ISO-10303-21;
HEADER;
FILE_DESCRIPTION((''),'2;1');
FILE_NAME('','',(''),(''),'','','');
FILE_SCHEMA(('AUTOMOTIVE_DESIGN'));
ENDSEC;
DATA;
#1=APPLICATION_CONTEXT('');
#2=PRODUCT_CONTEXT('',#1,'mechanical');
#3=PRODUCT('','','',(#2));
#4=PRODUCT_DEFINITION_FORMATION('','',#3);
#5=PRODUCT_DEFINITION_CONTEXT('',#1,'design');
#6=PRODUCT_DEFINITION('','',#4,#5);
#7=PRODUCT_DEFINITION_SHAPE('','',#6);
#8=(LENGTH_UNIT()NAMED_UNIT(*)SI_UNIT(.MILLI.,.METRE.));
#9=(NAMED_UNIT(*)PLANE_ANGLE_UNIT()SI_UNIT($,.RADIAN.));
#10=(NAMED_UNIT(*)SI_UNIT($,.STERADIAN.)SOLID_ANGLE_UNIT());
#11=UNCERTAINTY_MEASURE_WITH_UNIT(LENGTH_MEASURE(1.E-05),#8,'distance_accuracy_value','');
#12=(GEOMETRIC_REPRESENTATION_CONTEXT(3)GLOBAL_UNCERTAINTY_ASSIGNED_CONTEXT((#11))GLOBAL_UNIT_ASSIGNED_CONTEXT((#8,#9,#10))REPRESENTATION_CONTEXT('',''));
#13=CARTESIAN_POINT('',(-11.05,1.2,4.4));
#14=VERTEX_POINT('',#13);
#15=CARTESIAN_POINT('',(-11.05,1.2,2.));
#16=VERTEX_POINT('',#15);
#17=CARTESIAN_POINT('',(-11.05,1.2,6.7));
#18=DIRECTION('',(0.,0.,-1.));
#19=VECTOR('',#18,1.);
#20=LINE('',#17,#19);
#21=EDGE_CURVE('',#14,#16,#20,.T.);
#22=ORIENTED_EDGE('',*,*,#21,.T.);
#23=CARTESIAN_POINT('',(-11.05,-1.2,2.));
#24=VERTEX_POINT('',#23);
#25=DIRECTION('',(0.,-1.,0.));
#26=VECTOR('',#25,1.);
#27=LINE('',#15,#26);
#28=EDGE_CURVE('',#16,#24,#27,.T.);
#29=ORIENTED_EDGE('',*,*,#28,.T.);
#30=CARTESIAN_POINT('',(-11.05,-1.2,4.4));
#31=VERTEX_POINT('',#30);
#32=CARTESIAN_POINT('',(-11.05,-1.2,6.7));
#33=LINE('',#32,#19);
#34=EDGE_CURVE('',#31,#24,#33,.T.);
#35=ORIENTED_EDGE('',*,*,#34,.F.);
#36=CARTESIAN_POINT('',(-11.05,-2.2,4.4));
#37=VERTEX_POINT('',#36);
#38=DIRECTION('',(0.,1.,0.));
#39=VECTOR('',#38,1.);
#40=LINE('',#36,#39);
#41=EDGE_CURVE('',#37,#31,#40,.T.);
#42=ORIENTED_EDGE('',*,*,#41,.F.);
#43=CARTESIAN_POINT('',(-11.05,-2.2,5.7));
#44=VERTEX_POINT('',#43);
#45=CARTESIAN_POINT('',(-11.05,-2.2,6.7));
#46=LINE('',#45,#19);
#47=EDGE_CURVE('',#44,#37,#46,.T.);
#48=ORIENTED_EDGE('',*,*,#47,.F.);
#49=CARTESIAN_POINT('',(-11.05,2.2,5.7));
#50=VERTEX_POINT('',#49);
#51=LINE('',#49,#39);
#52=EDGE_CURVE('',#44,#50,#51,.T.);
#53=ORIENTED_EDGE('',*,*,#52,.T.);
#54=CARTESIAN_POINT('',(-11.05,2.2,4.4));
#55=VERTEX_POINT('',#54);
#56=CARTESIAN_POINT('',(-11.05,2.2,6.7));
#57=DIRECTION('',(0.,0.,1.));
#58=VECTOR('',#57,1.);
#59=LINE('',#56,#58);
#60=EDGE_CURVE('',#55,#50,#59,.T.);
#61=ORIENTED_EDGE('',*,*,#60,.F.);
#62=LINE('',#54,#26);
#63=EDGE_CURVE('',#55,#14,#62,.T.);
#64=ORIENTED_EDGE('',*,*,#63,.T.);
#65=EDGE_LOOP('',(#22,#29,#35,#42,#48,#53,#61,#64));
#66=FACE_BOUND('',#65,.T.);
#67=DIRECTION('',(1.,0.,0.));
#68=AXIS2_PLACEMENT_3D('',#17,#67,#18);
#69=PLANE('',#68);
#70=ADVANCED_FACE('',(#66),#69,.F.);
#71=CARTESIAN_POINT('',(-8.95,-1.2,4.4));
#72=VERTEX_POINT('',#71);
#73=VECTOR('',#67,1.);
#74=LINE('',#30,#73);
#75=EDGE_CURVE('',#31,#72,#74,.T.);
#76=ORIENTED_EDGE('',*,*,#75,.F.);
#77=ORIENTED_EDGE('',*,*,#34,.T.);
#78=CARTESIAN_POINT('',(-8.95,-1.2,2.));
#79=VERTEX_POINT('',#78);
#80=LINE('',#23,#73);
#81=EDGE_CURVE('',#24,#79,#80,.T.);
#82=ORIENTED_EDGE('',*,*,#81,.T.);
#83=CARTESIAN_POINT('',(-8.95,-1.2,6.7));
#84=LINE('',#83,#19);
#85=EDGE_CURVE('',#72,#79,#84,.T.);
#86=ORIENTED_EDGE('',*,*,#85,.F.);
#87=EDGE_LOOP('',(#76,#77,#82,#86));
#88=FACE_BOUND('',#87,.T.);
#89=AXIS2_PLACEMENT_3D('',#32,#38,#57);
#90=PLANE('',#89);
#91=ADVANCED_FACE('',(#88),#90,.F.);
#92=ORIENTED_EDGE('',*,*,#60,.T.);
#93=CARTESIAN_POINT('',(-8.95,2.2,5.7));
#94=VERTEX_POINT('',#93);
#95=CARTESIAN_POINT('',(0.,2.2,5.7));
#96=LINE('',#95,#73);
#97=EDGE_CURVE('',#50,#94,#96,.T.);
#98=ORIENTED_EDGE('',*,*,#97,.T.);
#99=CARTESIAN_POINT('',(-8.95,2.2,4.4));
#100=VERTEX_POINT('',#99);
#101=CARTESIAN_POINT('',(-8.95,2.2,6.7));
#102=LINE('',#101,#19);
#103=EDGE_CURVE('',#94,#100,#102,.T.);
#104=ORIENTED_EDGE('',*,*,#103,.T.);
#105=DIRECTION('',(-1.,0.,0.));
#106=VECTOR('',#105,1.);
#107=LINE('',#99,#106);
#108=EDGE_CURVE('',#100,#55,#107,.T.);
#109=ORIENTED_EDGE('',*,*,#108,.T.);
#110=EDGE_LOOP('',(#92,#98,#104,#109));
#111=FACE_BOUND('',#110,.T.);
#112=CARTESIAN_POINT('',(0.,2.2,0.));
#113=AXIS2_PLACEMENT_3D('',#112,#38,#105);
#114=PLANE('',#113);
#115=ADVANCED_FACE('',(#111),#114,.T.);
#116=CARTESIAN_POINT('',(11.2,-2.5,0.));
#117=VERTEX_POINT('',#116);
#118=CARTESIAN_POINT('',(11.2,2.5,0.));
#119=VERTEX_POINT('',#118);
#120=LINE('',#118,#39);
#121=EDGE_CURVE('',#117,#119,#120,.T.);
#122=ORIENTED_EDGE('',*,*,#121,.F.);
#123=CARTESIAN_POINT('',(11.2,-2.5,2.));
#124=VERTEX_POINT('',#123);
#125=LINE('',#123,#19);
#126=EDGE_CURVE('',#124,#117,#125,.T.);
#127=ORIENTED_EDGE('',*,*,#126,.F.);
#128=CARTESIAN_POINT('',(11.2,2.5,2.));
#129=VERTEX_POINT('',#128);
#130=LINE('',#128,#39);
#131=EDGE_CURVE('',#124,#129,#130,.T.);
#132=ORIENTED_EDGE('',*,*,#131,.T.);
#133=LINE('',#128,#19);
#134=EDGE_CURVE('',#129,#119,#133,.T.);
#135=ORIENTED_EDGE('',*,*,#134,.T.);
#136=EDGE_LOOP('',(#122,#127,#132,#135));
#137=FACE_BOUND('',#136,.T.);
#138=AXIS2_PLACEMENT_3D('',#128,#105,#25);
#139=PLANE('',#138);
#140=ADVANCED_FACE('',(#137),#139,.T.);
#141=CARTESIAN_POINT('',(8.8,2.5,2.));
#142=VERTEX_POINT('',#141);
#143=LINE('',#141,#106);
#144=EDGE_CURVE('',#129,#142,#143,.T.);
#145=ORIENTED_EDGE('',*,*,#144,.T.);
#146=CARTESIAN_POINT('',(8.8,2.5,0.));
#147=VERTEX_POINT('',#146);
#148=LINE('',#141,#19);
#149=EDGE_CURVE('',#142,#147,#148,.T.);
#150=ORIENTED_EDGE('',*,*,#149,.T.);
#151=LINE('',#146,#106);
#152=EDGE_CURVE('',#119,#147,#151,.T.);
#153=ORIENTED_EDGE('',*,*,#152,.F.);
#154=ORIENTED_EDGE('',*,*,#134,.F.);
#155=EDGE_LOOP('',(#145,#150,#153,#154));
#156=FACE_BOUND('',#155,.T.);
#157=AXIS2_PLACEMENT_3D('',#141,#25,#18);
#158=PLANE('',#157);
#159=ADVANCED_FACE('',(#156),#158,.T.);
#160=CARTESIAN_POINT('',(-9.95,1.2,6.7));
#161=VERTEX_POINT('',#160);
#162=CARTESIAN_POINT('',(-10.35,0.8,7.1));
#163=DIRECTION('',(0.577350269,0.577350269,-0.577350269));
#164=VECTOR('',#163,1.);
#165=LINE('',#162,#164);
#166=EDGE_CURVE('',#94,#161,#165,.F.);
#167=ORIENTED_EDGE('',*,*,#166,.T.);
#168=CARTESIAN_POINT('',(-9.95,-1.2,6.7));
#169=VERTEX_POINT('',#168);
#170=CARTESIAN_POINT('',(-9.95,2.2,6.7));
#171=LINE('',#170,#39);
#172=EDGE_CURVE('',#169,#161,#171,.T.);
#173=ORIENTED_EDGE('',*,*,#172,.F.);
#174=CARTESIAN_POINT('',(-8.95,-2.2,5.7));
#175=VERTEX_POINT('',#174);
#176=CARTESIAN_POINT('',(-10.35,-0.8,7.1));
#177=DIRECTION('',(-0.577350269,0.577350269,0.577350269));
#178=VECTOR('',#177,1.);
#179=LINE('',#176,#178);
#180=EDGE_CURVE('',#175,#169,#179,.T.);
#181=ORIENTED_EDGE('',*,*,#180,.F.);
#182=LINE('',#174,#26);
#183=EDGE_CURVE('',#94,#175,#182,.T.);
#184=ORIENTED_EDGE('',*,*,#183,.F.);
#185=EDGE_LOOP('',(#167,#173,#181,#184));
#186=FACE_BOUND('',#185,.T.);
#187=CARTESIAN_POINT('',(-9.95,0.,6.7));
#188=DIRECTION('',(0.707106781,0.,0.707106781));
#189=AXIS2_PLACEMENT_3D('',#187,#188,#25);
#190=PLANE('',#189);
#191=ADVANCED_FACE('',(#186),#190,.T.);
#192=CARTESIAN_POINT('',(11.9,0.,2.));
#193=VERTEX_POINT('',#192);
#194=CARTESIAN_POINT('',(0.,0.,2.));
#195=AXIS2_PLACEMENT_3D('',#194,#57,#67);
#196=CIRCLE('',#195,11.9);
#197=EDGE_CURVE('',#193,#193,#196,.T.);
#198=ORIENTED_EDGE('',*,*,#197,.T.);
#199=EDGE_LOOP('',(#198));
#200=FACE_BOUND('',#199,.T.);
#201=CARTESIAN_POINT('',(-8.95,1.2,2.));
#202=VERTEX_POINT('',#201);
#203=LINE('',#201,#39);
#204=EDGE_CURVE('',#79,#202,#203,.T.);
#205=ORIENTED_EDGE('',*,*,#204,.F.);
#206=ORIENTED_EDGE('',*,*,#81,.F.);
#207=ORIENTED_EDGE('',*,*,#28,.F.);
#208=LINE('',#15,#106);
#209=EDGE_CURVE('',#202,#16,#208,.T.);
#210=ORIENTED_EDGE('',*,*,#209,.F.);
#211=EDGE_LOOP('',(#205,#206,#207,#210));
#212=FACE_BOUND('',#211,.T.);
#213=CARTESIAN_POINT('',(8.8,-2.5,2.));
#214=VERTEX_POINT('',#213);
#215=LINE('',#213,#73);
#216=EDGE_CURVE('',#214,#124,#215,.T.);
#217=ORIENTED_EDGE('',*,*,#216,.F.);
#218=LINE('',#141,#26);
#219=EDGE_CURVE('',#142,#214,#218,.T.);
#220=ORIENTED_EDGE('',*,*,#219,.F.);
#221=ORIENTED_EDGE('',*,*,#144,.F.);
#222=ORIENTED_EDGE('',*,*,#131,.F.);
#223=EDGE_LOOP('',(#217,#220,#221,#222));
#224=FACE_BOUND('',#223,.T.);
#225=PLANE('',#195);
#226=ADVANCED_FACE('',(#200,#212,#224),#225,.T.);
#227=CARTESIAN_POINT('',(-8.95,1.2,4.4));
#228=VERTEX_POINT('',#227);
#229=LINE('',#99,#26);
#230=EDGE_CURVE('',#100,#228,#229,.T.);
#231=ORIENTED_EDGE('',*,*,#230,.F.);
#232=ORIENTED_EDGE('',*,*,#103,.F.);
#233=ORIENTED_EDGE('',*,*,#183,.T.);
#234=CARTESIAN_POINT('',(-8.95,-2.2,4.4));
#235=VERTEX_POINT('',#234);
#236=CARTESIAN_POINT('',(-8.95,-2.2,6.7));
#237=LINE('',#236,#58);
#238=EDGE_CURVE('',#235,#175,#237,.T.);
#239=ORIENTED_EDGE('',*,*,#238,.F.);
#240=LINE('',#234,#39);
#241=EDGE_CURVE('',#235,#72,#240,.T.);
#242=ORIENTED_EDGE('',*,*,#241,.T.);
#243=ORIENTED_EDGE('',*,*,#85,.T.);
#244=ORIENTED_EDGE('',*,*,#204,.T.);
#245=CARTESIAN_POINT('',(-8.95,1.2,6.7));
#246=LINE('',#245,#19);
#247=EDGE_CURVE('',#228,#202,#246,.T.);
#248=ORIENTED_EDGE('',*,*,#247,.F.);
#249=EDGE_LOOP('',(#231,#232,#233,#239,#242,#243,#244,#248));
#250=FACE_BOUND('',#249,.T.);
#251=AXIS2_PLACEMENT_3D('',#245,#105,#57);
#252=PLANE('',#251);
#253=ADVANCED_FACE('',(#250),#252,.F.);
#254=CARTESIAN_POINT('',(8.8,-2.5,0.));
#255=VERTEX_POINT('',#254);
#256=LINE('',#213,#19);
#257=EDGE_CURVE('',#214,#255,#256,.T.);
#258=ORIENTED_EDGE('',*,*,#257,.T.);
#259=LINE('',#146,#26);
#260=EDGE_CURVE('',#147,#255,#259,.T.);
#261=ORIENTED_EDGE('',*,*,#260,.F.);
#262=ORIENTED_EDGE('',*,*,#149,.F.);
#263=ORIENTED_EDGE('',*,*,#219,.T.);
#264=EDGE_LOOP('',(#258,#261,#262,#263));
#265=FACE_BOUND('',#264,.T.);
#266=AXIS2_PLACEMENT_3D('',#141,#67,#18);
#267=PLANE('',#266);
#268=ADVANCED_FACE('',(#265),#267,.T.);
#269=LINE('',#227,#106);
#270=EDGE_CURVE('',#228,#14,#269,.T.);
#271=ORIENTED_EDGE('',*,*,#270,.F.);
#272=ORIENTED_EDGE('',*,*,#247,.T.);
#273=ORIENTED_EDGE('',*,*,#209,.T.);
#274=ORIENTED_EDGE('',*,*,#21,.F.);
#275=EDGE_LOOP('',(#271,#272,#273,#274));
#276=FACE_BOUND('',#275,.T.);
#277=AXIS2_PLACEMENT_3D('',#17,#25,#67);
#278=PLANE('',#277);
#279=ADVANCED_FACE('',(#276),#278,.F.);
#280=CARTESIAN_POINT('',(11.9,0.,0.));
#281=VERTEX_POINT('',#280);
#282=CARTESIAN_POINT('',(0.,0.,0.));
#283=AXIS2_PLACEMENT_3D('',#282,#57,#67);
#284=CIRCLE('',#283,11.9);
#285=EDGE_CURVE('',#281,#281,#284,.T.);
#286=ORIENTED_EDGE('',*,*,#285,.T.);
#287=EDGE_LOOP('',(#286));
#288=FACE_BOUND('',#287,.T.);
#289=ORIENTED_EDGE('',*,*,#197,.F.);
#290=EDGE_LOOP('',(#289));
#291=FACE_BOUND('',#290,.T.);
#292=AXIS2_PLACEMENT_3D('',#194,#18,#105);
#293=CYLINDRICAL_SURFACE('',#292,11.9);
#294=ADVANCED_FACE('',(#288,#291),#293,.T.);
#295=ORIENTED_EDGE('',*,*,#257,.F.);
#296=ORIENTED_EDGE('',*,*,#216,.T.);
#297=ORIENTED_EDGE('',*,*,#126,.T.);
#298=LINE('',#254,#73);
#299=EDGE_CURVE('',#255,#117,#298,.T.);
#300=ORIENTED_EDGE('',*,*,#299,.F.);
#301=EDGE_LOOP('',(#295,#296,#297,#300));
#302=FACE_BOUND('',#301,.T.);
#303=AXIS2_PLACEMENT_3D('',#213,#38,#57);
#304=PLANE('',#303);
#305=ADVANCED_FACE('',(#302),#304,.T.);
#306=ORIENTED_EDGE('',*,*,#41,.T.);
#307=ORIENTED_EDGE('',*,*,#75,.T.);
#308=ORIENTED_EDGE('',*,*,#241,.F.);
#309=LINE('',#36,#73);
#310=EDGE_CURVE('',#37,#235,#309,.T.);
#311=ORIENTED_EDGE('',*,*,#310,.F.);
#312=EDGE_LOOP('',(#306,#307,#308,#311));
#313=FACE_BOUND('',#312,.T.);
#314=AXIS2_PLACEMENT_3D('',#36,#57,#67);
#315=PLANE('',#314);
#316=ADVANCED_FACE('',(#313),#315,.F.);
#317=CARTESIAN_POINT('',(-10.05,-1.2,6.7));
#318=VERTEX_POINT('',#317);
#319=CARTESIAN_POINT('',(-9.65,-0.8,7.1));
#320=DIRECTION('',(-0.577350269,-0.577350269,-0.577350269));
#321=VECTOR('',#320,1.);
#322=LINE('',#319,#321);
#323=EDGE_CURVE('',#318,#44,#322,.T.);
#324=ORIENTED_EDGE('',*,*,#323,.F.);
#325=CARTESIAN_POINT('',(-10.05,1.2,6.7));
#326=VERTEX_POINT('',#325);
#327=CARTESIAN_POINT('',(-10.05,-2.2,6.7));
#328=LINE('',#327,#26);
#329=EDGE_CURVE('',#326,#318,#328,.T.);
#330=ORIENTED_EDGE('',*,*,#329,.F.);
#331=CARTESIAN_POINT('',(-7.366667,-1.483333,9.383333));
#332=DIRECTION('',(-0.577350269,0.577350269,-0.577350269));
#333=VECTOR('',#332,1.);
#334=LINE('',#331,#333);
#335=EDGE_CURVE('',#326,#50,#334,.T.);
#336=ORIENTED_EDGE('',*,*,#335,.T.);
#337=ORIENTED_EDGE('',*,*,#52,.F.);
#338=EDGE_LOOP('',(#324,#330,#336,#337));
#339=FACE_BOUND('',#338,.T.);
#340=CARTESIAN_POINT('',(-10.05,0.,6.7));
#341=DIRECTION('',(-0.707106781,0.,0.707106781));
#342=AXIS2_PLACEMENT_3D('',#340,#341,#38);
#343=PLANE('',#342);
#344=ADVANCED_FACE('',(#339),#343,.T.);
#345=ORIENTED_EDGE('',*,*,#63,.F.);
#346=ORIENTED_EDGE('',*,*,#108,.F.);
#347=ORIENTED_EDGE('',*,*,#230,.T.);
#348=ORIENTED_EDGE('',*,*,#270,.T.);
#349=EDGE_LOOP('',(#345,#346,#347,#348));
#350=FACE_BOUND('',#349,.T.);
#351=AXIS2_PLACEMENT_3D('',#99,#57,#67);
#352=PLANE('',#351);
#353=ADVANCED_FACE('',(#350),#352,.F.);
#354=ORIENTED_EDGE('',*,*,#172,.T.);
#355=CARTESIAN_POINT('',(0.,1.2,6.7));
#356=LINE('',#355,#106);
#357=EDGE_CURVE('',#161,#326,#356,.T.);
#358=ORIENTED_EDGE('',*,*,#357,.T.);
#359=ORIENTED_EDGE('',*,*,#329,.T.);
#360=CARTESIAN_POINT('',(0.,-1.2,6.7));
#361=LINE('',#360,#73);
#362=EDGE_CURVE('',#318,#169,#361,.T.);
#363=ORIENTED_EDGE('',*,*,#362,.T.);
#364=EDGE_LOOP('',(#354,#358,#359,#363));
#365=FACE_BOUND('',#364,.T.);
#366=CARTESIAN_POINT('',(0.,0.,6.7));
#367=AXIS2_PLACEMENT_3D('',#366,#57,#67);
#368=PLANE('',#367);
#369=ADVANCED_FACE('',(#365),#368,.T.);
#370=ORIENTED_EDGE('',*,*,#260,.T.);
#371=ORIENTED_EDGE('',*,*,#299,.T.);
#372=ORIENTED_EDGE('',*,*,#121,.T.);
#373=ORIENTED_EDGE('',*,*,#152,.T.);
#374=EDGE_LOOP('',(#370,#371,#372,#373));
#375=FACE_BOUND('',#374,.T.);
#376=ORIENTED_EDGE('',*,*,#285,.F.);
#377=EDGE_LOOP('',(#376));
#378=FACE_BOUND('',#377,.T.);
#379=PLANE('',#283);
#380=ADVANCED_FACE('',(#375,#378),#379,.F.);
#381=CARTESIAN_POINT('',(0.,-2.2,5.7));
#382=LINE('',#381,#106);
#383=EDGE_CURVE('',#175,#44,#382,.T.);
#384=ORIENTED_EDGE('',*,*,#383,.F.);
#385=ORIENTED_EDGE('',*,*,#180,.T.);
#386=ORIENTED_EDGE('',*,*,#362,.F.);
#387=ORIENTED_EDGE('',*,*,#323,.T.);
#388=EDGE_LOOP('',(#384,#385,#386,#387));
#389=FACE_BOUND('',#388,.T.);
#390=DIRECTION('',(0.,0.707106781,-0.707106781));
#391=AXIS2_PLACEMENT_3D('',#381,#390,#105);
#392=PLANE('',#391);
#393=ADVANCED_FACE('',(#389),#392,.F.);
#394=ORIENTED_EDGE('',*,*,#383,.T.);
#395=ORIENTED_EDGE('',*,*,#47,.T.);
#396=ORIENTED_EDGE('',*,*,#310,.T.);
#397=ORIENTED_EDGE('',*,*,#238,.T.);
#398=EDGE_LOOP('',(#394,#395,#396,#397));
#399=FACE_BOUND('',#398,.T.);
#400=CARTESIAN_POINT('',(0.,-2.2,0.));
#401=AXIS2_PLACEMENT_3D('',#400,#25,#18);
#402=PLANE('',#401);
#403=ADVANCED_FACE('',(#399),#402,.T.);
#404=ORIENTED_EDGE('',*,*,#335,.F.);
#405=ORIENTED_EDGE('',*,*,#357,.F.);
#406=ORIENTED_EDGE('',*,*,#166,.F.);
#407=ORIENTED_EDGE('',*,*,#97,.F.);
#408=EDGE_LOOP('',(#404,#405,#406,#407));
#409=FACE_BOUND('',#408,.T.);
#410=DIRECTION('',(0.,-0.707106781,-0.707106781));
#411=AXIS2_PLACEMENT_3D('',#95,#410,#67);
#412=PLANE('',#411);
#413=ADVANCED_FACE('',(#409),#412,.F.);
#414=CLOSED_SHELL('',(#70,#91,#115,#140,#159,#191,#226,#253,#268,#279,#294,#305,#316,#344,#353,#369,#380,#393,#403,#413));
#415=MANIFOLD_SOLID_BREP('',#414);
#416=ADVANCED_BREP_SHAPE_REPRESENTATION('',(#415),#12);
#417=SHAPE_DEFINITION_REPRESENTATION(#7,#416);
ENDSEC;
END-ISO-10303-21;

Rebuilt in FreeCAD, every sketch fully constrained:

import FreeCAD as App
import Part
import Sketcher
Q = App.Units.Quantity


def edges_at(feature, points):
    """Names of the edges that pass closest to the given points."""
    edges = feature.Shape.Edges
    near = lambda p: min(range(len(edges)), key=lambda i: edges[i].distToShape(Part.Vertex(*p))[0])
    return sorted({f"Edge{near(p) + 1}" for p in points})

doc = App.newDocument("Part")
body = doc.addObject("PartDesign::Body", "Body")

# Sketch on XY plane
sketch1 = body.newObject("Sketcher::SketchObject", "Sketch")
sketch1.AttachmentSupport = (doc.getObject("XY_Plane"), [""])
sketch1.MapMode = "FlatFace"
sketch1.addGeometry(Part.Circle(App.Vector(0, 0, 0), App.Vector(0, 0, 1), 11.9), False)
sketch1.addGeometry(Part.LineSegment(App.Vector(11.2, -2.5, 0), App.Vector(8.8, -2.5, 0)), False)
sketch1.addGeometry(Part.LineSegment(App.Vector(8.8, -2.5, 0), App.Vector(8.8, 2.5, 0)), False)
sketch1.addGeometry(Part.LineSegment(App.Vector(8.8, 2.5, 0), App.Vector(11.2, 2.5, 0)), False)
sketch1.addGeometry(Part.LineSegment(App.Vector(11.2, 2.5, 0), App.Vector(11.2, -2.5, 0)), False)
sketch1.addConstraint(Sketcher.Constraint("Coincident", 1, 2, 2, 1))
sketch1.addConstraint(Sketcher.Constraint("Coincident", 2, 2, 3, 1))
sketch1.addConstraint(Sketcher.Constraint("Coincident", 3, 2, 4, 1))
sketch1.addConstraint(Sketcher.Constraint("Coincident", 4, 2, 1, 1))
sketch1.addConstraint(Sketcher.Constraint("Horizontal", 1))
sketch1.addConstraint(Sketcher.Constraint("Vertical", 2))
sketch1.addConstraint(Sketcher.Constraint("Horizontal", 3))
sketch1.addConstraint(Sketcher.Constraint("Vertical", 4))
sketch1.addConstraint(Sketcher.Constraint("Coincident", 0, 3, -1, 1))
sketch1.addConstraint(Sketcher.Constraint("Diameter", 0, Q("23.8 mm")))
sketch1.addConstraint(Sketcher.Constraint("DistanceY", 2, 1, 2, 2, Q("5 mm")))
sketch1.addConstraint(Sketcher.Constraint("DistanceX", 1, 2, 1, 1, Q("2.4 mm")))
sketch1.addConstraint(Sketcher.Constraint("DistanceX", -1, 1, 1, 2, Q("8.8 mm")))
sketch1.addConstraint(Sketcher.Constraint("DistanceY", 1, 2, -1, 1, Q("2.5 mm")))
pad1 = body.newObject("PartDesign::Pad", "Pad")
pad1.Profile = sketch1
pad1.Length = 2

# Sketch on XY plane
sketch2 = body.newObject("Sketcher::SketchObject", "Sketch001")
sketch2.AttachmentSupport = (doc.getObject("XY_Plane"), [""])
sketch2.MapMode = "FlatFace"
sketch2.AttachmentOffset = App.Placement(App.Vector(0, 0, 2), App.Rotation())
sketch2.addGeometry(Part.LineSegment(App.Vector(-11.05, 1.2, 0), App.Vector(-11.05, -1.2, 0)), False)
sketch2.addGeometry(Part.LineSegment(App.Vector(-11.05, -1.2, 0), App.Vector(-8.95, -1.2, 0)), False)
sketch2.addGeometry(Part.LineSegment(App.Vector(-8.95, -1.2, 0), App.Vector(-8.95, 1.2, 0)), False)
sketch2.addGeometry(Part.LineSegment(App.Vector(-8.95, 1.2, 0), App.Vector(-11.05, 1.2, 0)), False)
sketch2.addConstraint(Sketcher.Constraint("Coincident", 0, 2, 1, 1))
sketch2.addConstraint(Sketcher.Constraint("Coincident", 1, 2, 2, 1))
sketch2.addConstraint(Sketcher.Constraint("Coincident", 2, 2, 3, 1))
sketch2.addConstraint(Sketcher.Constraint("Coincident", 3, 2, 0, 1))
sketch2.addConstraint(Sketcher.Constraint("Vertical", 0))
sketch2.addConstraint(Sketcher.Constraint("Horizontal", 1))
sketch2.addConstraint(Sketcher.Constraint("Vertical", 2))
sketch2.addConstraint(Sketcher.Constraint("Horizontal", 3))
sketch2.addConstraint(Sketcher.Constraint("DistanceX", 1, 1, 1, 2, Q("2.1 mm")))
sketch2.addConstraint(Sketcher.Constraint("DistanceY", 0, 2, 0, 1, Q("2.4 mm")))
sketch2.addConstraint(Sketcher.Constraint("DistanceY", 0, 2, -1, 1, Q("1.2 mm")))
sketch2.addConstraint(Sketcher.Constraint("DistanceX", 0, 2, -1, 1, Q("11.05 mm")))
pad2 = body.newObject("PartDesign::Pad", "Pad001")
pad2.Profile = sketch2
pad2.Length = 4.7

# Sketch on XZ plane
sketch3 = body.newObject("Sketcher::SketchObject", "Sketch002")
sketch3.AttachmentSupport = (doc.getObject("XZ_Plane"), [""])
sketch3.MapMode = "FlatFace"
sketch3.AttachmentOffset = App.Placement(App.Vector(0, 0, -1.2), App.Rotation())
sketch3.addGeometry(Part.LineSegment(App.Vector(-11.05, 4.4, 0), App.Vector(-11.05, 6.7, 0)), False)
sketch3.addGeometry(Part.LineSegment(App.Vector(-11.05, 6.7, 0), App.Vector(-8.95, 6.7, 0)), False)
sketch3.addGeometry(Part.LineSegment(App.Vector(-8.95, 6.7, 0), App.Vector(-8.95, 4.4, 0)), False)
sketch3.addGeometry(Part.LineSegment(App.Vector(-8.95, 4.4, 0), App.Vector(-11.05, 4.4, 0)), False)
sketch3.addConstraint(Sketcher.Constraint("Coincident", 0, 2, 1, 1))
sketch3.addConstraint(Sketcher.Constraint("Coincident", 1, 2, 2, 1))
sketch3.addConstraint(Sketcher.Constraint("Coincident", 2, 2, 3, 1))
sketch3.addConstraint(Sketcher.Constraint("Coincident", 3, 2, 0, 1))
sketch3.addConstraint(Sketcher.Constraint("Vertical", 0))
sketch3.addConstraint(Sketcher.Constraint("Horizontal", 1))
sketch3.addConstraint(Sketcher.Constraint("Vertical", 2))
sketch3.addConstraint(Sketcher.Constraint("Horizontal", 3))
sketch3.addConstraint(Sketcher.Constraint("DistanceX", 1, 1, 1, 2, Q("2.1 mm")))
sketch3.addConstraint(Sketcher.Constraint("DistanceY", 0, 1, 0, 2, Q("2.3 mm")))
sketch3.addConstraint(Sketcher.Constraint("DistanceY", -1, 1, 0, 2, Q("6.7 mm")))
sketch3.addConstraint(Sketcher.Constraint("DistanceX", 0, 2, -1, 1, Q("11.05 mm")))
pad3 = body.newObject("PartDesign::Pad", "Pad002")
pad3.Profile = sketch3
pad3.Length = 1
pad3.Reversed = True

# Sketch on XZ plane
sketch4 = body.newObject("Sketcher::SketchObject", "Sketch003")
sketch4.AttachmentSupport = (doc.getObject("XZ_Plane"), [""])
sketch4.MapMode = "FlatFace"
sketch4.AttachmentOffset = App.Placement(App.Vector(0, 0, 1.2), App.Rotation())
sketch4.addGeometry(Part.LineSegment(App.Vector(-11.05, 6.7, 0), App.Vector(-11.05, 4.4, 0)), False)
sketch4.addGeometry(Part.LineSegment(App.Vector(-11.05, 4.4, 0), App.Vector(-8.95, 4.4, 0)), False)
sketch4.addGeometry(Part.LineSegment(App.Vector(-8.95, 4.4, 0), App.Vector(-8.95, 6.7, 0)), False)
sketch4.addGeometry(Part.LineSegment(App.Vector(-8.95, 6.7, 0), App.Vector(-11.05, 6.7, 0)), False)
sketch4.addConstraint(Sketcher.Constraint("Coincident", 0, 2, 1, 1))
sketch4.addConstraint(Sketcher.Constraint("Coincident", 1, 2, 2, 1))
sketch4.addConstraint(Sketcher.Constraint("Coincident", 2, 2, 3, 1))
sketch4.addConstraint(Sketcher.Constraint("Coincident", 3, 2, 0, 1))
sketch4.addConstraint(Sketcher.Constraint("Vertical", 0))
sketch4.addConstraint(Sketcher.Constraint("Horizontal", 1))
sketch4.addConstraint(Sketcher.Constraint("Vertical", 2))
sketch4.addConstraint(Sketcher.Constraint("Horizontal", 3))
sketch4.addConstraint(Sketcher.Constraint("DistanceX", 1, 1, 1, 2, Q("2.1 mm")))
sketch4.addConstraint(Sketcher.Constraint("DistanceY", 0, 2, 0, 1, Q("2.3 mm")))
sketch4.addConstraint(Sketcher.Constraint("DistanceY", -1, 1, 0, 2, Q("4.4 mm")))
sketch4.addConstraint(Sketcher.Constraint("DistanceX", 0, 2, -1, 1, Q("11.05 mm")))
pad4 = body.newObject("PartDesign::Pad", "Pad003")
pad4.Profile = sketch4
pad4.Length = 1
doc.recompute()

chamfer = body.newObject("PartDesign::Chamfer", "Chamfer")
chamfer.Base = (pad4, edges_at(pad4, [
    (-8.95, 0, 6.7),
    (-11.05, 0, 6.7),
    (-10, 2.2, 6.7),
    (-10, -2.2, 6.7),
]))
chamfer.Size = 1

doc.recompute()
